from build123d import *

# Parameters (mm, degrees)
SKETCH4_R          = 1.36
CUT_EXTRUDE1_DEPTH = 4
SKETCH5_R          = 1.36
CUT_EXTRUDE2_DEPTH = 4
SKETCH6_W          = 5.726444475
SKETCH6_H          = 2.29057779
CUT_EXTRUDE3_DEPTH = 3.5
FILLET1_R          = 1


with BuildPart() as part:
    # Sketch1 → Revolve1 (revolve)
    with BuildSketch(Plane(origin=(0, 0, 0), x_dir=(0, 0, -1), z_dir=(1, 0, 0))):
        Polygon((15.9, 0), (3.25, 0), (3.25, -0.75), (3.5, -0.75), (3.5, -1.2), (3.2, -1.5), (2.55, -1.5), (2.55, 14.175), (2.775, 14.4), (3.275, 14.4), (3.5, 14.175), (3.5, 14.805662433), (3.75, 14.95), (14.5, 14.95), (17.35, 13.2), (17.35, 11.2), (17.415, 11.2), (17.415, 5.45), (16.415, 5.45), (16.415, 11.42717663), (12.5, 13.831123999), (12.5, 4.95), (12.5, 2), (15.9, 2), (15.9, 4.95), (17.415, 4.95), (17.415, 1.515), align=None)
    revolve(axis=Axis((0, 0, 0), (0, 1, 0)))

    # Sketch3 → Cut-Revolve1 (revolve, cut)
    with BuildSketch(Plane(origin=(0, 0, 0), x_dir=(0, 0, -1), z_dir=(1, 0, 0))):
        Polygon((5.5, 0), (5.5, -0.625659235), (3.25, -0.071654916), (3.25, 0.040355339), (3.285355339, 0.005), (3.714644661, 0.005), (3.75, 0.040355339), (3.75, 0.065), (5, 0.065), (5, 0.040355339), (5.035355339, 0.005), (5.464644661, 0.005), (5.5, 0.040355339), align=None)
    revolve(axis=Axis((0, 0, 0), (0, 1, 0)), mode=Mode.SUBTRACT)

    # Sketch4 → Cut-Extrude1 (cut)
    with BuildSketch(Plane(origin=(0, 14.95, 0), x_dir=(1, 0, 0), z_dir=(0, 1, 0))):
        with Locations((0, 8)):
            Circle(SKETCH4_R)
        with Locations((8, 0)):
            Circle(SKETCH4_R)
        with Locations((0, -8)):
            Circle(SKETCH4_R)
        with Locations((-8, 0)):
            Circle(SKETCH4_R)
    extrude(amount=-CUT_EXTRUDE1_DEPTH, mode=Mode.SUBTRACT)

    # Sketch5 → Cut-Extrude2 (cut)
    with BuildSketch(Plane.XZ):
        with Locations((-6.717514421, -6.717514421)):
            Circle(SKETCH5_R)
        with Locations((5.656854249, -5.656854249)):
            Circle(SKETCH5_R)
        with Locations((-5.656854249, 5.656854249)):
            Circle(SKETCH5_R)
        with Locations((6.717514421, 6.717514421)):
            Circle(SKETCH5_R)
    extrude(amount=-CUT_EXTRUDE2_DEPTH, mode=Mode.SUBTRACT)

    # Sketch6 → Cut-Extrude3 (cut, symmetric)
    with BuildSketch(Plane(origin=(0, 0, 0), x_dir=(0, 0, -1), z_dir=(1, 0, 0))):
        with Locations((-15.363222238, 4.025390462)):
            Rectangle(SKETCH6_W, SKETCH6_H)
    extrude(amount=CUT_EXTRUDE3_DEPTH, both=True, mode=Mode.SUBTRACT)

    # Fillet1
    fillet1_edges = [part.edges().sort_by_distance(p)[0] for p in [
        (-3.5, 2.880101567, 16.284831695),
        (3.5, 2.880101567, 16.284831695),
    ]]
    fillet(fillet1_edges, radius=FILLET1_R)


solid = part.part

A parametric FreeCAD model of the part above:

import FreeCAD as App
import Part
import Sketcher

V = App.Vector
Q = App.Units.Quantity


def edges_at(feature, points):
    """Names of the edges that pass closest to the given points."""
    edges = feature.Shape.Edges
    near = lambda p: min(range(len(edges)), key=lambda i: edges[i].distToShape(Part.Vertex(*p))[0])
    return sorted({f"Edge{near(p) + 1}" for p in points})

doc = App.newDocument("Part")
body = doc.addObject("PartDesign::Body", "Body")

# Sketch on YZ plane
sketch1 = doc.addObject("Sketcher::SketchObject", "Sketch")
body.addObject(sketch1)
sketch1.AttachmentSupport = (doc.YZ_Plane, [""])
sketch1.MapMode = "FlatFace"
sketch1.addGeometry([
    Part.LineSegment(V(0, -3.25, 0), V(0, -15.9, 0)),  # 0
    Part.LineSegment(V(0, -15.9, 0), V(1.51, -17.41, 0)),  # 1
    Part.LineSegment(V(1.51, -17.41, 0), V(4.95, -17.41, 0)),  # 2
    Part.LineSegment(V(4.95, -17.41, 0), V(4.95, -15.9, 0)),  # 3
    Part.LineSegment(V(4.95, -15.9, 0), V(2, -15.9, 0)),  # 4
    Part.LineSegment(V(2, -15.9, 0), V(2, -12.5, 0)),  # 5
    Part.LineSegment(V(2, -12.5, 0), V(13.83, -12.5, 0)),  # 6
    Part.LineSegment(V(13.83, -12.5, 0), V(11.43, -16.41, 0)),  # 7
    Part.LineSegment(V(11.43, -16.41, 0), V(5.45, -16.41, 0)),  # 8
    Part.LineSegment(V(5.45, -16.41, 0), V(5.45, -17.41, 0)),  # 9
    Part.LineSegment(V(5.45, -17.41, 0), V(11.2, -17.41, 0)),  # 10
    Part.LineSegment(V(11.2, -17.41, 0), V(11.2, -17.35, 0)),  # 11
    Part.LineSegment(V(11.2, -17.35, 0), V(13.2, -17.35, 0)),  # 12
    Part.LineSegment(V(13.2, -17.35, 0), V(14.95, -14.5, 0)),  # 13
    Part.LineSegment(V(14.95, -14.5, 0), V(14.95, -3.75, 0)),  # 14
    Part.LineSegment(V(14.95, -3.75, 0), V(14.81, -3.5, 0)),  # 15
    Part.LineSegment(V(14.81, -3.5, 0), V(14.18, -3.5, 0)),  # 16
    Part.LineSegment(V(14.18, -3.5, 0), V(14.4, -3.27, 0)),  # 17
    Part.LineSegment(V(14.4, -3.27, 0), V(14.4, -2.77, 0)),  # 18
    Part.LineSegment(V(14.4, -2.77, 0), V(14.18, -2.55, 0)),  # 19
    Part.LineSegment(V(14.18, -2.55, 0), V(-1.5, -2.55, 0)),  # 20
    Part.LineSegment(V(-1.5, -2.55, 0), V(-1.5, -3.2, 0)),  # 21
    Part.LineSegment(V(-1.5, -3.2, 0), V(-1.2, -3.5, 0)),  # 22
    Part.LineSegment(V(-1.2, -3.5, 0), V(-0.75, -3.5, 0)),  # 23
    Part.LineSegment(V(-0.75, -3.5, 0), V(-0.75, -3.25, 0)),  # 24
    Part.LineSegment(V(-0.75, -3.25, 0), V(0, -3.25, 0)),  # 25
], False)
sketch1.addConstraint([
    Sketcher.Constraint("Coincident", 0, 2, 1, 1),
    Sketcher.Constraint("Coincident", 1, 2, 2, 1),
    Sketcher.Constraint("Coincident", 2, 2, 3, 1),
    Sketcher.Constraint("Coincident", 3, 2, 4, 1),
    Sketcher.Constraint("Coincident", 4, 2, 5, 1),
    Sketcher.Constraint("Coincident", 5, 2, 6, 1),
    Sketcher.Constraint("Coincident", 6, 2, 7, 1),
    Sketcher.Constraint("Coincident", 7, 2, 8, 1),
    Sketcher.Constraint("Coincident", 8, 2, 9, 1),
    Sketcher.Constraint("Coincident", 9, 2, 10, 1),
    Sketcher.Constraint("Coincident", 10, 2, 11, 1),
    Sketcher.Constraint("Coincident", 11, 2, 12, 1),
    Sketcher.Constraint("Coincident", 12, 2, 13, 1),
    Sketcher.Constraint("Coincident", 13, 2, 14, 1),
    Sketcher.Constraint("Coincident", 14, 2, 15, 1),
    Sketcher.Constraint("Coincident", 15, 2, 16, 1),
    Sketcher.Constraint("Coincident", 16, 2, 17, 1),
    Sketcher.Constraint("Coincident", 17, 2, 18, 1),
    Sketcher.Constraint("Coincident", 18, 2, 19, 1),
    Sketcher.Constraint("Coincident", 19, 2, 20, 1),
    Sketcher.Constraint("Coincident", 20, 2, 21, 1),
    Sketcher.Constraint("Coincident", 21, 2, 22, 1),
    Sketcher.Constraint("Coincident", 22, 2, 23, 1),
    Sketcher.Constraint("Coincident", 23, 2, 24, 1),
    Sketcher.Constraint("Coincident", 24, 2, 25, 1),
    Sketcher.Constraint("Coincident", 25, 2, 0, 1),
    Sketcher.Constraint("Vertical", 0),
    Sketcher.Constraint("Horizontal", 2),
    Sketcher.Constraint("Vertical", 3),
    Sketcher.Constraint("Horizontal", 4),
    Sketcher.Constraint("Vertical", 5),
    Sketcher.Constraint("Horizontal", 6),
    Sketcher.Constraint("Horizontal", 8),
    Sketcher.Constraint("Vertical", 9),
    Sketcher.Constraint("Horizontal", 10),
    Sketcher.Constraint("Vertical", 11),
    Sketcher.Constraint("Horizontal", 12),
    Sketcher.Constraint("Vertical", 14),
    Sketcher.Constraint("Horizontal", 16),
    Sketcher.Constraint("Vertical", 18),
    Sketcher.Constraint("Horizontal", 20),
    Sketcher.Constraint("Vertical", 21),
    Sketcher.Constraint("Horizontal", 23),
    Sketcher.Constraint("Vertical", 24),
    Sketcher.Constraint("Horizontal", 25),
    Sketcher.Constraint("PointOnObject", 0, 2, -2),
    Sketcher.Constraint("Parallel", 7, 13),
    Sketcher.Constraint("Perpendicular", 1, 17),
    Sketcher.Constraint("Perpendicular", 17, 19),
    Sketcher.Constraint("Parallel", 19, 22),
    Sketcher.Constraint("Horizontal", 0, 2, 3, 2),
    Sketcher.Constraint("Horizontal", 2, 2, 9, 2),
    Sketcher.Constraint("Horizontal", 16, 2, 22, 2),
    Sketcher.Constraint("Vertical", 16, 2, 19, 2),
    Sketcher.Constraint("Equal", 17, 19),
    Sketcher.Constraint("DistanceX", 12, 1, 12, 2, 2.0),
    Sketcher.Constraint("DistanceY", 9, 2, 9, 1, 1.0),
    Sketcher.Constraint("Angle", 15, Q("120 deg")),
    Sketcher.Constraint("DistanceY", 5, 1, 5, 2, 3.4),
    Sketcher.Constraint("DistanceY", 18, 1, 18, 2, 0.5),
    Sketcher.Constraint("DistanceX", -1, 1, 4, 2, 2.0),
    Sketcher.Constraint("DistanceY", 13, 2, 6, 2, 2.0),
    Sketcher.Constraint("DistanceY", 6, 2, 15, 2, 9.0),
    Sketcher.Constraint("DistanceX", 4, 2, 4, 1, 2.95),
    Sketcher.Constraint("DistanceX", 10, 1, 10, 2, 5.75),
    Sketcher.Constraint("DistanceX", 23, 1, 23, 2, 0.45),
    Sketcher.Constraint("DistanceX", 25, 1, 25, 2, 0.75),
    Sketcher.Constraint("DistanceY", 0, 2, 0, 1, 12.65),
    Sketcher.Constraint("DistanceY", 14, 1, 14, 2, 10.75),
    Sketcher.Constraint("DistanceY", 21, 2, 21, 1, 0.65),
    Sketcher.Constraint("DistanceY", 0, 2, -1, 1, 15.9),
    Sketcher.Constraint("DistanceX", -1, 1, 10, 2, 11.2),
    Sketcher.Constraint("DistanceX", -1, 1, 17, 2, 14.4),
    Sketcher.Constraint("DistanceX", 20, 2, -1, 1, 1.5),
    Sketcher.Constraint("DistanceY", 12, 2, 14, 2, 13.6),
    Sketcher.Constraint("DistanceX", 2, 1, 2, 2, 3.435),
    Sketcher.Constraint("DistanceX", -1, 1, 13, 2, 14.95),
    Sketcher.Constraint("DistanceX", 6, 1, 6, 2, 11.831124),
])
revolution = doc.addObject("PartDesign::Revolution", "Revolution")
body.addObject(revolution)
revolution.Profile = sketch1
revolution.ReferenceAxis = (sketch1, ["H_Axis"])
revolution.Angle = 360

# Sketch on YZ plane
sketch2 = doc.addObject("Sketcher::SketchObject", "Sketch001")
body.addObject(sketch2)
sketch2.AttachmentSupport = (doc.YZ_Plane, [""])
sketch2.MapMode = "FlatFace"
sketch2.addGeometry([
    Part.LineSegment(V(-0.626, -5.5, 0), V(0.04, -5.5, 0)),  # 0
    Part.LineSegment(V(0.04, -5.5, 0), V(0.005, -5.465, 0)),  # 1
    Part.LineSegment(V(0.005, -5.465, 0), V(0.005, -5.035, 0)),  # 2
    Part.LineSegment(V(0.005, -5.035, 0), V(0.04, -5, 0)),  # 3
    Part.LineSegment(V(0.04, -5, 0), V(0.065, -5, 0)),  # 4
    Part.LineSegment(V(0.065, -5, 0), V(0.065, -3.75, 0)),  # 5
    Part.LineSegment(V(0.065, -3.75, 0), V(0.04, -3.75, 0)),  # 6
    Part.LineSegment(V(0.04, -3.75, 0), V(0.005, -3.715, 0)),  # 7
    Part.LineSegment(V(0.005, -3.715, 0), V(0.005, -3.285, 0)),  # 8
    Part.LineSegment(V(0.005, -3.285, 0), V(0.04, -3.25, 0)),  # 9
    Part.LineSegment(V(0.04, -3.25, 0), V(-0.072, -3.25, 0)),  # 10
    Part.LineSegment(V(-0.072, -3.25, 0), V(-0.626, -5.5, 0)),  # 11
], False)
sketch2.addConstraint([
    Sketcher.Constraint("Coincident", 0, 2, 1, 1),
    Sketcher.Constraint("Coincident", 1, 2, 2, 1),
    Sketcher.Constraint("Coincident", 2, 2, 3, 1),
    Sketcher.Constraint("Coincident", 3, 2, 4, 1),
    Sketcher.Constraint("Coincident", 4, 2, 5, 1),
    Sketcher.Constraint("Coincident", 5, 2, 6, 1),
    Sketcher.Constraint("Coincident", 6, 2, 7, 1),
    Sketcher.Constraint("Coincident", 7, 2, 8, 1),
    Sketcher.Constraint("Coincident", 8, 2, 9, 1),
    Sketcher.Constraint("Coincident", 9, 2, 10, 1),
    Sketcher.Constraint("Coincident", 10, 2, 11, 1),
    Sketcher.Constraint("Coincident", 11, 2, 0, 1),
    Sketcher.Constraint("Horizontal", 0),
    Sketcher.Constraint("Vertical", 2),
    Sketcher.Constraint("Horizontal", 4),
    Sketcher.Constraint("Vertical", 5),
    Sketcher.Constraint("Horizontal", 6),
    Sketcher.Constraint("Vertical", 8),
    Sketcher.Constraint("Horizontal", 10),
    Sketcher.Constraint("Perpendicular", 1, 3),
    Sketcher.Constraint("Perpendicular", 3, 7),
    Sketcher.Constraint("Perpendicular", 7, 9),
    Sketcher.Constraint("Vertical", 0, 2, 3, 2),
    Sketcher.Constraint("Vertical", 3, 2, 6, 2),
    Sketcher.Constraint("Vertical", 2, 2, 7, 2),
    Sketcher.Constraint("Vertical", 6, 2, 9, 2),
    Sketcher.Constraint("Equal", 2, 8),
    Sketcher.Constraint("Equal", 1, 3),
    Sketcher.Constraint("DistanceY", 3, 2, -1, 1, 5.0),
    Sketcher.Constraint("DistanceY", 5, 1, 5, 2, 1.25),
    Sketcher.Constraint("DistanceY", 0, 2, -1, 1, 5.5),
    Sketcher.Constraint("Distance", 1, 0.05),
    Sketcher.Constraint("DistanceX", 2, 2, 4, 2, 0.06),
    Sketcher.Constraint("DistanceX", -1, 1, 1, 2, 0.005),
    Sketcher.Constraint("Distance", 11, 2.317201),
    Sketcher.Constraint("DistanceX", 10, 2, 10, 1, 0.11201),
])
groove = doc.addObject("PartDesign::Groove", "Groove")
body.addObject(groove)
groove.Profile = sketch2
groove.ReferenceAxis = (sketch2, ["H_Axis"])
groove.Angle = 360

# Sketch on XZ plane
sketch3 = doc.addObject("Sketcher::SketchObject", "Sketch002")
body.addObject(sketch3)
sketch3.AttachmentSupport = (doc.XZ_Plane, [""])
sketch3.MapMode = "FlatFace"
sketch3.AttachmentOffset = App.Placement(V(0, 0, -14.95), App.Rotation())
sketch3.addGeometry([
    Part.Circle(V(0, -8, 0), V(0, 0, 1), 1.4),
    Part.Circle(V(8, 0, 0), V(0, 0, 1), 1.4),
    Part.Circle(V(0, 8, 0), V(0, 0, 1), 1.4),
    Part.Circle(V(-8, 0, 0), V(0, 0, 1), 1.4),
], False)
sketch3.addConstraint([
    Sketcher.Constraint("Equal", 0, 1),
    Sketcher.Constraint("Equal", 1, 2),
    Sketcher.Constraint("Equal", 2, 3),
    Sketcher.Constraint("Symmetric", 0, 3, 2, 3, -1, 1),
    Sketcher.Constraint("Symmetric", 1, 3, 3, 3, -1, 1),
    Sketcher.Constraint("PointOnObject", 0, 3, -2),
    Sketcher.Constraint("PointOnObject", 1, 3, -1),
    Sketcher.Constraint("Diameter", 0, 2.72),
    Sketcher.Constraint("DistanceY", 0, 3, -1, 1, 8.0),
    Sketcher.Constraint("DistanceX", -1, 1, 1, 3, 8.0),
])
pocket1 = doc.addObject("PartDesign::Pocket", "Pocket")
body.addObject(pocket1)
pocket1.Profile = sketch3
pocket1.Length = 4
pocket1.Reversed = True

# Sketch on XZ plane
sketch4 = doc.addObject("Sketcher::SketchObject", "Sketch003")
body.addObject(sketch4)
sketch4.AttachmentSupport = (doc.XZ_Plane, [""])
sketch4.MapMode = "FlatFace"
sketch4.addGeometry([
    Part.Circle(V(-6.7, -6.7, 0), V(0, 0, 1), 1.4),
    Part.Circle(V(5.7, -5.7, 0), V(0, 0, 1), 1.4),
    Part.Circle(V(-5.7, 5.7, 0), V(0, 0, 1), 1.4),
    Part.Circle(V(6.7, 6.7, 0), V(0, 0, 1), 1.4),
], False)
sketch4.addConstraint([
    Sketcher.Constraint("Equal", 0, 1),
    Sketcher.Constraint("Equal", 1, 2),
    Sketcher.Constraint("Equal", 2, 3),
    Sketcher.Constraint("Symmetric", 1, 3, 2, 3, -1, 1),
    Sketcher.Constraint("Symmetric", 0, 3, 3, 3, -1, 1),
    Sketcher.Constraint("Diameter", 0, 2.72),
    Sketcher.Constraint("DistanceX", 0, 3, 1, 3, 12.374369),
    Sketcher.Constraint("DistanceY", 0, 3, 1, 3, 1.06066),
    Sketcher.Constraint("DistanceX", 0, 3, 2, 3, 1.06066),
    Sketcher.Constraint("DistanceY", 0, 3, 2, 3, 12.374369),
])
pocket2 = doc.addObject("PartDesign::Pocket", "Pocket001")
body.addObject(pocket2)
pocket2.Profile = sketch4
pocket2.Length = 4

# Sketch on YZ plane
sketch5 = doc.addObject("Sketcher::SketchObject", "Sketch004")
body.addObject(sketch5)
sketch5.AttachmentSupport = (doc.YZ_Plane, [""])
sketch5.MapMode = "FlatFace"
sketch5.addGeometry([
    Part.LineSegment(V(5.2, 18.2, 0), V(2.9, 18.2, 0)),
    Part.LineSegment(V(2.9, 18.2, 0), V(2.9, 12.5, 0)),
    Part.LineSegment(V(2.9, 12.5, 0), V(5.2, 12.5, 0)),
    Part.LineSegment(V(5.2, 12.5, 0), V(5.2, 18.2, 0)),
], False)
sketch5.addConstraint([
    Sketcher.Constraint("Coincident", 0, 2, 1, 1),
    Sketcher.Constraint("Coincident", 1, 2, 2, 1),
    Sketcher.Constraint("Coincident", 2, 2, 3, 1),
    Sketcher.Constraint("Coincident", 3, 2, 0, 1),
    Sketcher.Constraint("Horizontal", 0),
    Sketcher.Constraint("Vertical", 1),
    Sketcher.Constraint("Horizontal", 2),
    Sketcher.Constraint("Vertical", 3),
    Sketcher.Constraint("DistanceY", -1, 1, 1, 2, 12.5),
    Sketcher.Constraint("DistanceX", -1, 1, 0, 2, 2.880102),
    Sketcher.Constraint("DistanceX", 0, 2, 0, 1, 2.290578),
    Sketcher.Constraint("DistanceY", 1, 2, 1, 1, 5.726444),
])
pocket3 = doc.addObject("PartDesign::Pocket", "Pocket002")
body.addObject(pocket3)
pocket3.Profile = sketch5
pocket3.Length = 7
pocket3.Midplane = True
doc.recompute()

fillet = doc.addObject("PartDesign::Fillet", "Fillet")
body.addObject(fillet)
fillet.Base = (pocket3, edges_at(pocket3, [(-3.5, 2.88, 16.285), (3.5, 2.88, 16.285)]))
fillet.Radius = 1

doc.recompute()
